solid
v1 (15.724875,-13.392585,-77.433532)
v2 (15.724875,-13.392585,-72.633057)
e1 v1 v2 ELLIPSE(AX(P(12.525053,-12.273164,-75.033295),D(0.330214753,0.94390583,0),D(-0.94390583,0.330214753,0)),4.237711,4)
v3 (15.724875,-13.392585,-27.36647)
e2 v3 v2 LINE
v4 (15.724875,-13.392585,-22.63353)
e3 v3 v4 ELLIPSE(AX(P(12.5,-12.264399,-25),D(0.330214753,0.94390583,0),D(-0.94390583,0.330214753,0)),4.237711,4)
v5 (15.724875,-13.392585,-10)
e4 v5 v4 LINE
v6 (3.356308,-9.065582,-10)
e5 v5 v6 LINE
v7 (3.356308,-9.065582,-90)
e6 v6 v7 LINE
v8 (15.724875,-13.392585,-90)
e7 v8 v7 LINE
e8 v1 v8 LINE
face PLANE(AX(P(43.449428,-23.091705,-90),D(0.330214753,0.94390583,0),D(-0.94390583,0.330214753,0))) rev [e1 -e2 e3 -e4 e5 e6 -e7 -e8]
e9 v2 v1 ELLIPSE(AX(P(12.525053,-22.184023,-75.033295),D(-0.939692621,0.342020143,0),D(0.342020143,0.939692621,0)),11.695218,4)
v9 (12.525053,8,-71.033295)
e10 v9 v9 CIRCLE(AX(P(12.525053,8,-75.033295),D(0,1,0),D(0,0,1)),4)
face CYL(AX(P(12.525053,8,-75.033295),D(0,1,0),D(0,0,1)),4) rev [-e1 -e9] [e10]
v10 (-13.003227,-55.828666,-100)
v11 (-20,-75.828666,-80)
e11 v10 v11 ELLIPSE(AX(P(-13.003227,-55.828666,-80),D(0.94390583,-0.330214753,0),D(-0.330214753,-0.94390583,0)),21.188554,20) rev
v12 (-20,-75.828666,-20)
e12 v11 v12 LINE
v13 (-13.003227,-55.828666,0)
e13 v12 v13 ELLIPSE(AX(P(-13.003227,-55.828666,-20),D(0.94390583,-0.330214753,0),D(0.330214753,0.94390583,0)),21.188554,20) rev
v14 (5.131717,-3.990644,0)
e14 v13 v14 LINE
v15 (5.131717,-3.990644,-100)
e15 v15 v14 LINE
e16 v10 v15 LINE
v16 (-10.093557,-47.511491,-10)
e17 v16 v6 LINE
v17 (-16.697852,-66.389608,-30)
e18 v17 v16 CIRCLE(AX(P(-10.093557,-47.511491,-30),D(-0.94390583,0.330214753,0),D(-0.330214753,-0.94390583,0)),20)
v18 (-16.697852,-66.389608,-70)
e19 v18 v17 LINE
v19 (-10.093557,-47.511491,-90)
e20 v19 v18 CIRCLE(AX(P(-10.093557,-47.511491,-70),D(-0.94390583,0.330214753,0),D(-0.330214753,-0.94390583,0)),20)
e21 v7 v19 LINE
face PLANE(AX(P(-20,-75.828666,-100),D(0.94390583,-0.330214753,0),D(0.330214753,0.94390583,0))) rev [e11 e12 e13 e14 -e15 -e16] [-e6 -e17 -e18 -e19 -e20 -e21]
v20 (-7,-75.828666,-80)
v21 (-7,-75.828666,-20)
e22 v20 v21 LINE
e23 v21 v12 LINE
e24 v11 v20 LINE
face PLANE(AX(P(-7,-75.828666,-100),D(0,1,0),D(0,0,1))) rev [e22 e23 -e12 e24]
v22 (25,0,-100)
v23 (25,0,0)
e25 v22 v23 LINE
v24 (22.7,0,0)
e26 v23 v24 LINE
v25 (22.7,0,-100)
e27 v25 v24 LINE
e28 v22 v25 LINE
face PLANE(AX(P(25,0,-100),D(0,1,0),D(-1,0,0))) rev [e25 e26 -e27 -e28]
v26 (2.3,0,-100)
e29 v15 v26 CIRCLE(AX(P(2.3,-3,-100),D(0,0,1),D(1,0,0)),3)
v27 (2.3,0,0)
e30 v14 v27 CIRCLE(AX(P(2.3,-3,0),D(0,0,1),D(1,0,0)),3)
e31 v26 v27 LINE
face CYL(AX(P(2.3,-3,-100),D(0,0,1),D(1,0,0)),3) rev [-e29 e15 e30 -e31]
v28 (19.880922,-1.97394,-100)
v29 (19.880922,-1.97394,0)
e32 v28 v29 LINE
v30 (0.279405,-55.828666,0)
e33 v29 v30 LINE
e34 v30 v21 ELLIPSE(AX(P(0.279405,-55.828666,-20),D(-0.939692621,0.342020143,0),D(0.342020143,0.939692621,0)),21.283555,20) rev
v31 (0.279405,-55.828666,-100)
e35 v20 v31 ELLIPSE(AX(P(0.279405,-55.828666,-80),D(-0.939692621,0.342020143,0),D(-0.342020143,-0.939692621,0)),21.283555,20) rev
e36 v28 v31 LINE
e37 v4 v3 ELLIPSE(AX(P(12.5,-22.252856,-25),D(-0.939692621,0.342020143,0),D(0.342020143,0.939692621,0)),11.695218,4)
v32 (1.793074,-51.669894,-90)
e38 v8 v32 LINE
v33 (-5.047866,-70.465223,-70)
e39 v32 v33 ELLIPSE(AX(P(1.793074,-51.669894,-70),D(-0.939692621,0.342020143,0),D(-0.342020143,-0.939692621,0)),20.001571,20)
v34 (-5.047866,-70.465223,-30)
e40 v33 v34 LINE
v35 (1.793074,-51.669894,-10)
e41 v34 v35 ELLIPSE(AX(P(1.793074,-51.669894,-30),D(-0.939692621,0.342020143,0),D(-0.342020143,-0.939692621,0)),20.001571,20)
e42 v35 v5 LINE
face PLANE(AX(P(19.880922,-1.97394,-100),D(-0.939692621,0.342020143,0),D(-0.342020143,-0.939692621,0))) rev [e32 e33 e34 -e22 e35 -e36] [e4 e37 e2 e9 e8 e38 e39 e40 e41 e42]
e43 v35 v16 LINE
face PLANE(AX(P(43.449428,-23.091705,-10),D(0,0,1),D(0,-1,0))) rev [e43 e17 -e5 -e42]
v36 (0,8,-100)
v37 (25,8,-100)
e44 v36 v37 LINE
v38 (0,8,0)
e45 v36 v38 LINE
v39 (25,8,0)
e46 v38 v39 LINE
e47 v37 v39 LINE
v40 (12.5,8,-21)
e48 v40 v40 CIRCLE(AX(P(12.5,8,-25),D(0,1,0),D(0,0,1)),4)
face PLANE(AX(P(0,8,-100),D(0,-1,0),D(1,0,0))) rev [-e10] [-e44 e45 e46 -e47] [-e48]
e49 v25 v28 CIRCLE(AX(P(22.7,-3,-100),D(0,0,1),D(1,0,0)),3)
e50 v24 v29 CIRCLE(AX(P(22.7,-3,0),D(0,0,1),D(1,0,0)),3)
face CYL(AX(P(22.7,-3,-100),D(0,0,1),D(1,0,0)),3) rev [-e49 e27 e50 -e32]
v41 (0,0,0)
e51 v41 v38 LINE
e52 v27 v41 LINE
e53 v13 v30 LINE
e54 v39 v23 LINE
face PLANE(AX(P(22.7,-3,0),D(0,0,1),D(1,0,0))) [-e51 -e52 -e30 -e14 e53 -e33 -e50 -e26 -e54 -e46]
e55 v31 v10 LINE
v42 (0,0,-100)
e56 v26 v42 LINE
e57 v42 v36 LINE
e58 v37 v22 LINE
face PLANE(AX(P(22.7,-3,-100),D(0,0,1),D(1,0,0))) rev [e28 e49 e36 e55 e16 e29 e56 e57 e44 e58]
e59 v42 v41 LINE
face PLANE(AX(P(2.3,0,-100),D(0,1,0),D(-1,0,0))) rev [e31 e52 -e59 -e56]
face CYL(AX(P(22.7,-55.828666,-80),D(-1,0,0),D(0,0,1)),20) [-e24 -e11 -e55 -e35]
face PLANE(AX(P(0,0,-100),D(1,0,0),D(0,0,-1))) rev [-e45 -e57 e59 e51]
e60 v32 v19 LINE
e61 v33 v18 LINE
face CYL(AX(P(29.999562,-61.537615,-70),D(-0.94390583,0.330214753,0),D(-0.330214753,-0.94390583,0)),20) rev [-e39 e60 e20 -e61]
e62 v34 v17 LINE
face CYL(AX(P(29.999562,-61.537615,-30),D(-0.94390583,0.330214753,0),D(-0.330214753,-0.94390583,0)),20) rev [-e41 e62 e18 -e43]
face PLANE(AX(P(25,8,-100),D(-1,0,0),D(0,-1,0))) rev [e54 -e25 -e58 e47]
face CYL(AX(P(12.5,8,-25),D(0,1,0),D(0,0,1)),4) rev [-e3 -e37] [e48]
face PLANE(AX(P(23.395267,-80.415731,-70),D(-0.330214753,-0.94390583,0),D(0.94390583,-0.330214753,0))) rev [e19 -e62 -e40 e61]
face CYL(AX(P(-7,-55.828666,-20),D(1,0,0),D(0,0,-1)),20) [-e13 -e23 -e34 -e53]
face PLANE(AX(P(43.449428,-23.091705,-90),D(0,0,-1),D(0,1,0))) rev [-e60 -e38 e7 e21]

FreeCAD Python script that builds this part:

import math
import FreeCAD as App
import Part
import Sketcher

V = App.Vector
Q = App.Units.Quantity


def edges_at(feature, points):
    """Names of the edges that pass closest to the given points."""
    edges = feature.Shape.Edges
    near = lambda p: min(range(len(edges)), key=lambda i: edges[i].distToShape(Part.Vertex(*p))[0])
    return sorted({f"Edge{near(p) + 1}" for p in points})

doc = App.newDocument("Part")
params = doc.addObject("Spreadsheet::Sheet", "Params")
for row, (alias, value) in enumerate([
    ("sketch1_radius", "3 mm"),
    ("sketch1_width", "13 mm"),
    ("sketch1_width2", "25 mm"),
    ("sketch1_height", "8 mm"),
    ("sketch1_width3", "2.3 mm"),
    ("pad1_length", "100 mm"),
    ("sketch2_radius", "20 mm"),
    ("sketch2_width", "80 mm"),
    ("fillet_radius", "20 mm"),
    ("sketch3_diameter", "8 mm"),
    ("hole_diameter", "8 mm"),
], start=1):
    params.set(f"A{row}", alias)
    params.set(f"B{row}", "=" + value)
    params.setAlias(f"B{row}", alias)

body = doc.addObject("PartDesign::Body", "Body")

# Sketch on XY plane
sketch1 = body.newObject("Sketcher::SketchObject", "Sketch")
sketch1.AttachmentSupport = (doc.getObject("XY_Plane"), [""])
sketch1.MapMode = "FlatFace"
sketch1.addGeometry([
    Part.LineSegment(V(0, 8, 0), V(0, 0, 0)),  # 0
    Part.LineSegment(V(0, 0, 0), V(2.3, 0, 0)),  # 1
    Part.ArcOfCircle(Part.Circle(V(2.3, -3, 0), V(0, 0, 1), 3), math.radians(-19), math.radians(90)),  # 2
    Part.LineSegment(V(5.1, -4, 0), V(-20, -75.8, 0)),  # 3
    Part.LineSegment(V(-20, -75.8, 0), V(-7, -75.8, 0)),  # 4
    Part.LineSegment(V(-7, -75.8, 0), V(19.9, -2, 0)),  # 5
    Part.ArcOfCircle(Part.Circle(V(22.7, -3, 0), V(0, 0, 1), 3), math.radians(90), math.radians(160)),  # 6
    Part.LineSegment(V(22.7, 0, 0), V(25, 0, 0)),  # 7
    Part.LineSegment(V(25, 0, 0), V(25, 8, 0)),  # 8
    Part.LineSegment(V(25, 8, 0), V(0, 8, 0)),  # 9
], False)
sketch1.addConstraint([
    Sketcher.Constraint("Coincident", 0, 2, 1, 1),
    Sketcher.Constraint("Tangent", 1, 2, 2, 2),
    Sketcher.Constraint("Tangent", 2, 1, 3, 1),
    Sketcher.Constraint("Coincident", 3, 2, 4, 1),
    Sketcher.Constraint("Coincident", 4, 2, 5, 1),
    Sketcher.Constraint("Tangent", 5, 2, 6, 2),
    Sketcher.Constraint("Tangent", 6, 1, 7, 1),
    Sketcher.Constraint("Coincident", 7, 2, 8, 1),
    Sketcher.Constraint("Coincident", 8, 2, 9, 1),
    Sketcher.Constraint("Coincident", 9, 2, 0, 1),
    Sketcher.Constraint("Vertical", 0),
    Sketcher.Constraint("Horizontal", 1),
    Sketcher.Constraint("Horizontal", 4),
    Sketcher.Constraint("Horizontal", 7),
    Sketcher.Constraint("Vertical", 8),
    Sketcher.Constraint("Horizontal", 9),
    Sketcher.Constraint("Coincident", 0, 2, -1, 1),
    Sketcher.Constraint("Equal", 2, 6),
    Sketcher.Constraint("PointOnObject", 6, 1, -1),
    Sketcher.Constraint("Equal", 1, 7),
    Sketcher.Constraint("Radius", 2, Q("3 mm")),
    Sketcher.Constraint("DistanceX", 4, 1, 4, 2, Q("13 mm")),
    Sketcher.Constraint("DistanceX", 9, 2, 9, 1, Q("25 mm")),
    Sketcher.Constraint("DistanceY", 0, 2, 0, 1, Q("8 mm")),
    Sketcher.Constraint("Angle", 5, Q("70 deg")),
    Sketcher.Constraint("DistanceX", 1, 1, 1, 2, Q("2.3 mm")),
    Sketcher.Constraint("DistanceX", 3, 2, -1, 1, Q("20 mm")),
])
sketch1.setExpression("Constraints[20]", "Params.sketch1_radius")
sketch1.setExpression("Constraints[21]", "Params.sketch1_width")
sketch1.setExpression("Constraints[22]", "Params.sketch1_width2")
sketch1.setExpression("Constraints[23]", "Params.sketch1_height")
sketch1.setExpression("Constraints[25]", "Params.sketch1_width3")
pad1 = body.newObject("PartDesign::Pad", "Pad")
pad1.Profile = sketch1
pad1.setExpression("Length", "Params.pad1_length")
pad1.Reversed = True

# Sketch on an angled plane
sketch2 = body.newObject("Sketcher::SketchObject", "Sketch001")
sketch2.Placement = App.Placement(V(5.815996, -2.03466, 0), App.Rotation(V(0, 0, 1), V(0.330214753, 0.94390583, 0), V(-0.94390583, 0.330214753, 0), "ZXY"))
sketch2.addGeometry([
    Part.LineSegment(V(-10, -7, 0), V(-90, -7, 0)),  # 0
    Part.LineSegment(V(-90, -7, 0), V(-90, -48, 0)),  # 1
    Part.ArcOfCircle(Part.Circle(V(-70, -48, 0), V(0, 0, 1), 20), math.radians(-180), math.radians(-90)),  # 2
    Part.LineSegment(V(-70, -68, 0), V(-30, -68, 0)),  # 3
    Part.ArcOfCircle(Part.Circle(V(-30, -48, 0), V(0, 0, 1), 20), math.radians(-90), math.radians(0)),  # 4
    Part.LineSegment(V(-10, -48, 0), V(-10, -7, 0)),  # 5
], False)
sketch2.addConstraint([
    Sketcher.Constraint("Coincident", 0, 2, 1, 1),
    Sketcher.Constraint("Tangent", 1, 2, 2, 1),
    Sketcher.Constraint("Tangent", 2, 2, 3, 1),
    Sketcher.Constraint("Tangent", 3, 2, 4, 1),
    Sketcher.Constraint("Tangent", 4, 2, 5, 1),
    Sketcher.Constraint("Coincident", 5, 2, 0, 1),
    Sketcher.Constraint("Horizontal", 0),
    Sketcher.Constraint("Vertical", 1),
    Sketcher.Constraint("Horizontal", 3),
    Sketcher.Constraint("Vertical", 5),
    Sketcher.Constraint("Equal", 2, 4),
    Sketcher.Constraint("Radius", 2, Q("20 mm")),
    Sketcher.Constraint("DistanceX", 0, 2, 0, 1, Q("80 mm")),
    Sketcher.Constraint("DistanceX", 2, 3, -1, 1, Q("70 mm")),
    Sketcher.Constraint("DistanceY", 1, 2, 1, 1, Q("40.730662 mm")),
    Sketcher.Constraint("DistanceY", 2, 3, -1, 1, Q("48.179415 mm")),
])
sketch2.setExpression("Constraints[11]", "Params.sketch2_radius")
sketch2.setExpression("Constraints[12]", "Params.sketch2_width")
pocket1 = body.newObject("PartDesign::Pocket", "Pocket")
pocket1.Profile = sketch2
pocket1.Type = "ThroughAll"
doc.recompute()

fillet = body.newObject("PartDesign::Fillet", "Fillet")
fillet.Base = (pocket1, edges_at(pocket1, [(-13.5, -75.829, -100), (-13.5, -75.829, 0)]))
fillet.setExpression("Radius", "Params.fillet_radius")

# Sketch on XZ plane
sketch3 = body.newObject("Sketcher::SketchObject", "Sketch002")
sketch3.AttachmentSupport = (doc.getObject("XZ_Plane"), [""])
sketch3.MapMode = "FlatFace"
sketch3.AttachmentOffset = App.Placement(V(0, 0, -8), App.Rotation())
sketch3.addGeometry([
    Part.Circle(V(12.5, -75, 0), V(0, 0, 1), 4),
    Part.Circle(V(12.5, -25, 0), V(0, 0, 1), 4),
    Part.Circle(V(52.5, -47.7, 0), V(0, 0, 1), 4),
], False)
sketch3.addConstraint([
    Sketcher.Constraint("Equal", 0, 1),
    Sketcher.Constraint("Equal", 1, 2),
    Sketcher.Constraint("Diameter", 0, Q("8 mm")),
    Sketcher.Constraint("DistanceY", 1, 3, -1, 1, Q("25 mm")),
    Sketcher.Constraint("DistanceX", -1, 1, 1, 3, Q("12.5 mm")),
    Sketcher.Constraint("DistanceX", -1, 1, 2, 3, Q("52.497529 mm")),
    Sketcher.Constraint("DistanceX", -1, 1, 0, 3, Q("12.525053 mm")),
    Sketcher.Constraint("DistanceY", 0, 3, -1, 1, Q("75.033295 mm")),
    Sketcher.Constraint("DistanceY", 2, 3, -1, 1, Q("47.667378 mm")),
])
sketch3.setExpression("Constraints[2]", "Params.sketch3_diameter")
doc.recompute()
hole = body.newObject("PartDesign::Hole", "Hole")
hole.Profile = sketch3
hole.ThreadType = "None"
hole.setExpression("Diameter", "Params.hole_diameter")
hole.DepthType = "ThroughAll"
hole.Reversed = True

doc.recompute()
